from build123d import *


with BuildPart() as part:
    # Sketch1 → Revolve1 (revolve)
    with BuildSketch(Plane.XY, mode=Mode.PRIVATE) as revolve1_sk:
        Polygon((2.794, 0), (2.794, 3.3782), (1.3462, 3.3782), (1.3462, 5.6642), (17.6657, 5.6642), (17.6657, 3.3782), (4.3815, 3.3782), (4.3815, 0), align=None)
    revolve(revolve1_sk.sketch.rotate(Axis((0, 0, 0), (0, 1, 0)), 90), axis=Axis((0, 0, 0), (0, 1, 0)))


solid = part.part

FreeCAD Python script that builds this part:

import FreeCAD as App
import Part
import Sketcher

V = App.Vector
Q = App.Units.Quantity


def add_polygon(sketch, points):
    """Adds a closed chain of lines whose ends are joined by coincident constraints."""
    first, n = sketch.GeometryCount, len(points)
    for a, b in zip(points, points[1:] + points[:1]):
        sketch.addGeometry(Part.LineSegment(App.Vector(*a, 0), App.Vector(*b, 0)), False)
    for i in range(n):
        sketch.addConstraint(Sketcher.Constraint("Coincident", first + i, 2, first + (i + 1) % n, 1))

doc = App.newDocument("Part")
body = doc.addObject("PartDesign::Body", "Body")

# Sketch on XY plane
sketch1 = body.newObject("Sketcher::SketchObject", "Sketch")
sketch1.AttachmentSupport = (doc.getObject("XY_Plane"), [""])
sketch1.MapMode = "FlatFace"
add_polygon(sketch1, [(2.8, 3.4), (2.8, 0), (4.4, 0), (4.4, 3.4), (17.7, 3.4), (17.7, 5.7), (1.3, 5.7), (1.3, 3.4)])  # lines 0-7
sketch1.addConstraint([
    Sketcher.Constraint("Vertical", 0),
    Sketcher.Constraint("Horizontal", 1),
    Sketcher.Constraint("Vertical", 2),
    Sketcher.Constraint("Horizontal", 3),
    Sketcher.Constraint("Vertical", 4),
    Sketcher.Constraint("Horizontal", 5),
    Sketcher.Constraint("Vertical", 6),
    Sketcher.Constraint("Horizontal", 7),
    Sketcher.Constraint("PointOnObject", 0, 2, -1),
    Sketcher.Constraint("Horizontal", 3, 2, 6, 2),
    Sketcher.Constraint("DistanceY", 4, 1, 4, 2, Q("0.09 in")),
    Sketcher.Constraint("DistanceX", 1, 1, 1, 2, Q("0.0625 in")),
    Sketcher.Constraint("DistanceX", 3, 1, 3, 2, Q("0.523 in")),
    Sketcher.Constraint("DistanceX", 7, 1, 7, 2, Q("0.057 in")),
    Sketcher.Constraint("DistanceY", 0, 2, 0, 1, Q("0.133 in")),
    Sketcher.Constraint("DistanceX", -1, 1, 0, 2, Q("0.11 in")),
])
revolution = body.newObject("PartDesign::Revolution", "Revolution")
revolution.Profile = sketch1
revolution.ReferenceAxis = (sketch1, ["V_Axis"])
revolution.Angle = 360

doc.recompute()
